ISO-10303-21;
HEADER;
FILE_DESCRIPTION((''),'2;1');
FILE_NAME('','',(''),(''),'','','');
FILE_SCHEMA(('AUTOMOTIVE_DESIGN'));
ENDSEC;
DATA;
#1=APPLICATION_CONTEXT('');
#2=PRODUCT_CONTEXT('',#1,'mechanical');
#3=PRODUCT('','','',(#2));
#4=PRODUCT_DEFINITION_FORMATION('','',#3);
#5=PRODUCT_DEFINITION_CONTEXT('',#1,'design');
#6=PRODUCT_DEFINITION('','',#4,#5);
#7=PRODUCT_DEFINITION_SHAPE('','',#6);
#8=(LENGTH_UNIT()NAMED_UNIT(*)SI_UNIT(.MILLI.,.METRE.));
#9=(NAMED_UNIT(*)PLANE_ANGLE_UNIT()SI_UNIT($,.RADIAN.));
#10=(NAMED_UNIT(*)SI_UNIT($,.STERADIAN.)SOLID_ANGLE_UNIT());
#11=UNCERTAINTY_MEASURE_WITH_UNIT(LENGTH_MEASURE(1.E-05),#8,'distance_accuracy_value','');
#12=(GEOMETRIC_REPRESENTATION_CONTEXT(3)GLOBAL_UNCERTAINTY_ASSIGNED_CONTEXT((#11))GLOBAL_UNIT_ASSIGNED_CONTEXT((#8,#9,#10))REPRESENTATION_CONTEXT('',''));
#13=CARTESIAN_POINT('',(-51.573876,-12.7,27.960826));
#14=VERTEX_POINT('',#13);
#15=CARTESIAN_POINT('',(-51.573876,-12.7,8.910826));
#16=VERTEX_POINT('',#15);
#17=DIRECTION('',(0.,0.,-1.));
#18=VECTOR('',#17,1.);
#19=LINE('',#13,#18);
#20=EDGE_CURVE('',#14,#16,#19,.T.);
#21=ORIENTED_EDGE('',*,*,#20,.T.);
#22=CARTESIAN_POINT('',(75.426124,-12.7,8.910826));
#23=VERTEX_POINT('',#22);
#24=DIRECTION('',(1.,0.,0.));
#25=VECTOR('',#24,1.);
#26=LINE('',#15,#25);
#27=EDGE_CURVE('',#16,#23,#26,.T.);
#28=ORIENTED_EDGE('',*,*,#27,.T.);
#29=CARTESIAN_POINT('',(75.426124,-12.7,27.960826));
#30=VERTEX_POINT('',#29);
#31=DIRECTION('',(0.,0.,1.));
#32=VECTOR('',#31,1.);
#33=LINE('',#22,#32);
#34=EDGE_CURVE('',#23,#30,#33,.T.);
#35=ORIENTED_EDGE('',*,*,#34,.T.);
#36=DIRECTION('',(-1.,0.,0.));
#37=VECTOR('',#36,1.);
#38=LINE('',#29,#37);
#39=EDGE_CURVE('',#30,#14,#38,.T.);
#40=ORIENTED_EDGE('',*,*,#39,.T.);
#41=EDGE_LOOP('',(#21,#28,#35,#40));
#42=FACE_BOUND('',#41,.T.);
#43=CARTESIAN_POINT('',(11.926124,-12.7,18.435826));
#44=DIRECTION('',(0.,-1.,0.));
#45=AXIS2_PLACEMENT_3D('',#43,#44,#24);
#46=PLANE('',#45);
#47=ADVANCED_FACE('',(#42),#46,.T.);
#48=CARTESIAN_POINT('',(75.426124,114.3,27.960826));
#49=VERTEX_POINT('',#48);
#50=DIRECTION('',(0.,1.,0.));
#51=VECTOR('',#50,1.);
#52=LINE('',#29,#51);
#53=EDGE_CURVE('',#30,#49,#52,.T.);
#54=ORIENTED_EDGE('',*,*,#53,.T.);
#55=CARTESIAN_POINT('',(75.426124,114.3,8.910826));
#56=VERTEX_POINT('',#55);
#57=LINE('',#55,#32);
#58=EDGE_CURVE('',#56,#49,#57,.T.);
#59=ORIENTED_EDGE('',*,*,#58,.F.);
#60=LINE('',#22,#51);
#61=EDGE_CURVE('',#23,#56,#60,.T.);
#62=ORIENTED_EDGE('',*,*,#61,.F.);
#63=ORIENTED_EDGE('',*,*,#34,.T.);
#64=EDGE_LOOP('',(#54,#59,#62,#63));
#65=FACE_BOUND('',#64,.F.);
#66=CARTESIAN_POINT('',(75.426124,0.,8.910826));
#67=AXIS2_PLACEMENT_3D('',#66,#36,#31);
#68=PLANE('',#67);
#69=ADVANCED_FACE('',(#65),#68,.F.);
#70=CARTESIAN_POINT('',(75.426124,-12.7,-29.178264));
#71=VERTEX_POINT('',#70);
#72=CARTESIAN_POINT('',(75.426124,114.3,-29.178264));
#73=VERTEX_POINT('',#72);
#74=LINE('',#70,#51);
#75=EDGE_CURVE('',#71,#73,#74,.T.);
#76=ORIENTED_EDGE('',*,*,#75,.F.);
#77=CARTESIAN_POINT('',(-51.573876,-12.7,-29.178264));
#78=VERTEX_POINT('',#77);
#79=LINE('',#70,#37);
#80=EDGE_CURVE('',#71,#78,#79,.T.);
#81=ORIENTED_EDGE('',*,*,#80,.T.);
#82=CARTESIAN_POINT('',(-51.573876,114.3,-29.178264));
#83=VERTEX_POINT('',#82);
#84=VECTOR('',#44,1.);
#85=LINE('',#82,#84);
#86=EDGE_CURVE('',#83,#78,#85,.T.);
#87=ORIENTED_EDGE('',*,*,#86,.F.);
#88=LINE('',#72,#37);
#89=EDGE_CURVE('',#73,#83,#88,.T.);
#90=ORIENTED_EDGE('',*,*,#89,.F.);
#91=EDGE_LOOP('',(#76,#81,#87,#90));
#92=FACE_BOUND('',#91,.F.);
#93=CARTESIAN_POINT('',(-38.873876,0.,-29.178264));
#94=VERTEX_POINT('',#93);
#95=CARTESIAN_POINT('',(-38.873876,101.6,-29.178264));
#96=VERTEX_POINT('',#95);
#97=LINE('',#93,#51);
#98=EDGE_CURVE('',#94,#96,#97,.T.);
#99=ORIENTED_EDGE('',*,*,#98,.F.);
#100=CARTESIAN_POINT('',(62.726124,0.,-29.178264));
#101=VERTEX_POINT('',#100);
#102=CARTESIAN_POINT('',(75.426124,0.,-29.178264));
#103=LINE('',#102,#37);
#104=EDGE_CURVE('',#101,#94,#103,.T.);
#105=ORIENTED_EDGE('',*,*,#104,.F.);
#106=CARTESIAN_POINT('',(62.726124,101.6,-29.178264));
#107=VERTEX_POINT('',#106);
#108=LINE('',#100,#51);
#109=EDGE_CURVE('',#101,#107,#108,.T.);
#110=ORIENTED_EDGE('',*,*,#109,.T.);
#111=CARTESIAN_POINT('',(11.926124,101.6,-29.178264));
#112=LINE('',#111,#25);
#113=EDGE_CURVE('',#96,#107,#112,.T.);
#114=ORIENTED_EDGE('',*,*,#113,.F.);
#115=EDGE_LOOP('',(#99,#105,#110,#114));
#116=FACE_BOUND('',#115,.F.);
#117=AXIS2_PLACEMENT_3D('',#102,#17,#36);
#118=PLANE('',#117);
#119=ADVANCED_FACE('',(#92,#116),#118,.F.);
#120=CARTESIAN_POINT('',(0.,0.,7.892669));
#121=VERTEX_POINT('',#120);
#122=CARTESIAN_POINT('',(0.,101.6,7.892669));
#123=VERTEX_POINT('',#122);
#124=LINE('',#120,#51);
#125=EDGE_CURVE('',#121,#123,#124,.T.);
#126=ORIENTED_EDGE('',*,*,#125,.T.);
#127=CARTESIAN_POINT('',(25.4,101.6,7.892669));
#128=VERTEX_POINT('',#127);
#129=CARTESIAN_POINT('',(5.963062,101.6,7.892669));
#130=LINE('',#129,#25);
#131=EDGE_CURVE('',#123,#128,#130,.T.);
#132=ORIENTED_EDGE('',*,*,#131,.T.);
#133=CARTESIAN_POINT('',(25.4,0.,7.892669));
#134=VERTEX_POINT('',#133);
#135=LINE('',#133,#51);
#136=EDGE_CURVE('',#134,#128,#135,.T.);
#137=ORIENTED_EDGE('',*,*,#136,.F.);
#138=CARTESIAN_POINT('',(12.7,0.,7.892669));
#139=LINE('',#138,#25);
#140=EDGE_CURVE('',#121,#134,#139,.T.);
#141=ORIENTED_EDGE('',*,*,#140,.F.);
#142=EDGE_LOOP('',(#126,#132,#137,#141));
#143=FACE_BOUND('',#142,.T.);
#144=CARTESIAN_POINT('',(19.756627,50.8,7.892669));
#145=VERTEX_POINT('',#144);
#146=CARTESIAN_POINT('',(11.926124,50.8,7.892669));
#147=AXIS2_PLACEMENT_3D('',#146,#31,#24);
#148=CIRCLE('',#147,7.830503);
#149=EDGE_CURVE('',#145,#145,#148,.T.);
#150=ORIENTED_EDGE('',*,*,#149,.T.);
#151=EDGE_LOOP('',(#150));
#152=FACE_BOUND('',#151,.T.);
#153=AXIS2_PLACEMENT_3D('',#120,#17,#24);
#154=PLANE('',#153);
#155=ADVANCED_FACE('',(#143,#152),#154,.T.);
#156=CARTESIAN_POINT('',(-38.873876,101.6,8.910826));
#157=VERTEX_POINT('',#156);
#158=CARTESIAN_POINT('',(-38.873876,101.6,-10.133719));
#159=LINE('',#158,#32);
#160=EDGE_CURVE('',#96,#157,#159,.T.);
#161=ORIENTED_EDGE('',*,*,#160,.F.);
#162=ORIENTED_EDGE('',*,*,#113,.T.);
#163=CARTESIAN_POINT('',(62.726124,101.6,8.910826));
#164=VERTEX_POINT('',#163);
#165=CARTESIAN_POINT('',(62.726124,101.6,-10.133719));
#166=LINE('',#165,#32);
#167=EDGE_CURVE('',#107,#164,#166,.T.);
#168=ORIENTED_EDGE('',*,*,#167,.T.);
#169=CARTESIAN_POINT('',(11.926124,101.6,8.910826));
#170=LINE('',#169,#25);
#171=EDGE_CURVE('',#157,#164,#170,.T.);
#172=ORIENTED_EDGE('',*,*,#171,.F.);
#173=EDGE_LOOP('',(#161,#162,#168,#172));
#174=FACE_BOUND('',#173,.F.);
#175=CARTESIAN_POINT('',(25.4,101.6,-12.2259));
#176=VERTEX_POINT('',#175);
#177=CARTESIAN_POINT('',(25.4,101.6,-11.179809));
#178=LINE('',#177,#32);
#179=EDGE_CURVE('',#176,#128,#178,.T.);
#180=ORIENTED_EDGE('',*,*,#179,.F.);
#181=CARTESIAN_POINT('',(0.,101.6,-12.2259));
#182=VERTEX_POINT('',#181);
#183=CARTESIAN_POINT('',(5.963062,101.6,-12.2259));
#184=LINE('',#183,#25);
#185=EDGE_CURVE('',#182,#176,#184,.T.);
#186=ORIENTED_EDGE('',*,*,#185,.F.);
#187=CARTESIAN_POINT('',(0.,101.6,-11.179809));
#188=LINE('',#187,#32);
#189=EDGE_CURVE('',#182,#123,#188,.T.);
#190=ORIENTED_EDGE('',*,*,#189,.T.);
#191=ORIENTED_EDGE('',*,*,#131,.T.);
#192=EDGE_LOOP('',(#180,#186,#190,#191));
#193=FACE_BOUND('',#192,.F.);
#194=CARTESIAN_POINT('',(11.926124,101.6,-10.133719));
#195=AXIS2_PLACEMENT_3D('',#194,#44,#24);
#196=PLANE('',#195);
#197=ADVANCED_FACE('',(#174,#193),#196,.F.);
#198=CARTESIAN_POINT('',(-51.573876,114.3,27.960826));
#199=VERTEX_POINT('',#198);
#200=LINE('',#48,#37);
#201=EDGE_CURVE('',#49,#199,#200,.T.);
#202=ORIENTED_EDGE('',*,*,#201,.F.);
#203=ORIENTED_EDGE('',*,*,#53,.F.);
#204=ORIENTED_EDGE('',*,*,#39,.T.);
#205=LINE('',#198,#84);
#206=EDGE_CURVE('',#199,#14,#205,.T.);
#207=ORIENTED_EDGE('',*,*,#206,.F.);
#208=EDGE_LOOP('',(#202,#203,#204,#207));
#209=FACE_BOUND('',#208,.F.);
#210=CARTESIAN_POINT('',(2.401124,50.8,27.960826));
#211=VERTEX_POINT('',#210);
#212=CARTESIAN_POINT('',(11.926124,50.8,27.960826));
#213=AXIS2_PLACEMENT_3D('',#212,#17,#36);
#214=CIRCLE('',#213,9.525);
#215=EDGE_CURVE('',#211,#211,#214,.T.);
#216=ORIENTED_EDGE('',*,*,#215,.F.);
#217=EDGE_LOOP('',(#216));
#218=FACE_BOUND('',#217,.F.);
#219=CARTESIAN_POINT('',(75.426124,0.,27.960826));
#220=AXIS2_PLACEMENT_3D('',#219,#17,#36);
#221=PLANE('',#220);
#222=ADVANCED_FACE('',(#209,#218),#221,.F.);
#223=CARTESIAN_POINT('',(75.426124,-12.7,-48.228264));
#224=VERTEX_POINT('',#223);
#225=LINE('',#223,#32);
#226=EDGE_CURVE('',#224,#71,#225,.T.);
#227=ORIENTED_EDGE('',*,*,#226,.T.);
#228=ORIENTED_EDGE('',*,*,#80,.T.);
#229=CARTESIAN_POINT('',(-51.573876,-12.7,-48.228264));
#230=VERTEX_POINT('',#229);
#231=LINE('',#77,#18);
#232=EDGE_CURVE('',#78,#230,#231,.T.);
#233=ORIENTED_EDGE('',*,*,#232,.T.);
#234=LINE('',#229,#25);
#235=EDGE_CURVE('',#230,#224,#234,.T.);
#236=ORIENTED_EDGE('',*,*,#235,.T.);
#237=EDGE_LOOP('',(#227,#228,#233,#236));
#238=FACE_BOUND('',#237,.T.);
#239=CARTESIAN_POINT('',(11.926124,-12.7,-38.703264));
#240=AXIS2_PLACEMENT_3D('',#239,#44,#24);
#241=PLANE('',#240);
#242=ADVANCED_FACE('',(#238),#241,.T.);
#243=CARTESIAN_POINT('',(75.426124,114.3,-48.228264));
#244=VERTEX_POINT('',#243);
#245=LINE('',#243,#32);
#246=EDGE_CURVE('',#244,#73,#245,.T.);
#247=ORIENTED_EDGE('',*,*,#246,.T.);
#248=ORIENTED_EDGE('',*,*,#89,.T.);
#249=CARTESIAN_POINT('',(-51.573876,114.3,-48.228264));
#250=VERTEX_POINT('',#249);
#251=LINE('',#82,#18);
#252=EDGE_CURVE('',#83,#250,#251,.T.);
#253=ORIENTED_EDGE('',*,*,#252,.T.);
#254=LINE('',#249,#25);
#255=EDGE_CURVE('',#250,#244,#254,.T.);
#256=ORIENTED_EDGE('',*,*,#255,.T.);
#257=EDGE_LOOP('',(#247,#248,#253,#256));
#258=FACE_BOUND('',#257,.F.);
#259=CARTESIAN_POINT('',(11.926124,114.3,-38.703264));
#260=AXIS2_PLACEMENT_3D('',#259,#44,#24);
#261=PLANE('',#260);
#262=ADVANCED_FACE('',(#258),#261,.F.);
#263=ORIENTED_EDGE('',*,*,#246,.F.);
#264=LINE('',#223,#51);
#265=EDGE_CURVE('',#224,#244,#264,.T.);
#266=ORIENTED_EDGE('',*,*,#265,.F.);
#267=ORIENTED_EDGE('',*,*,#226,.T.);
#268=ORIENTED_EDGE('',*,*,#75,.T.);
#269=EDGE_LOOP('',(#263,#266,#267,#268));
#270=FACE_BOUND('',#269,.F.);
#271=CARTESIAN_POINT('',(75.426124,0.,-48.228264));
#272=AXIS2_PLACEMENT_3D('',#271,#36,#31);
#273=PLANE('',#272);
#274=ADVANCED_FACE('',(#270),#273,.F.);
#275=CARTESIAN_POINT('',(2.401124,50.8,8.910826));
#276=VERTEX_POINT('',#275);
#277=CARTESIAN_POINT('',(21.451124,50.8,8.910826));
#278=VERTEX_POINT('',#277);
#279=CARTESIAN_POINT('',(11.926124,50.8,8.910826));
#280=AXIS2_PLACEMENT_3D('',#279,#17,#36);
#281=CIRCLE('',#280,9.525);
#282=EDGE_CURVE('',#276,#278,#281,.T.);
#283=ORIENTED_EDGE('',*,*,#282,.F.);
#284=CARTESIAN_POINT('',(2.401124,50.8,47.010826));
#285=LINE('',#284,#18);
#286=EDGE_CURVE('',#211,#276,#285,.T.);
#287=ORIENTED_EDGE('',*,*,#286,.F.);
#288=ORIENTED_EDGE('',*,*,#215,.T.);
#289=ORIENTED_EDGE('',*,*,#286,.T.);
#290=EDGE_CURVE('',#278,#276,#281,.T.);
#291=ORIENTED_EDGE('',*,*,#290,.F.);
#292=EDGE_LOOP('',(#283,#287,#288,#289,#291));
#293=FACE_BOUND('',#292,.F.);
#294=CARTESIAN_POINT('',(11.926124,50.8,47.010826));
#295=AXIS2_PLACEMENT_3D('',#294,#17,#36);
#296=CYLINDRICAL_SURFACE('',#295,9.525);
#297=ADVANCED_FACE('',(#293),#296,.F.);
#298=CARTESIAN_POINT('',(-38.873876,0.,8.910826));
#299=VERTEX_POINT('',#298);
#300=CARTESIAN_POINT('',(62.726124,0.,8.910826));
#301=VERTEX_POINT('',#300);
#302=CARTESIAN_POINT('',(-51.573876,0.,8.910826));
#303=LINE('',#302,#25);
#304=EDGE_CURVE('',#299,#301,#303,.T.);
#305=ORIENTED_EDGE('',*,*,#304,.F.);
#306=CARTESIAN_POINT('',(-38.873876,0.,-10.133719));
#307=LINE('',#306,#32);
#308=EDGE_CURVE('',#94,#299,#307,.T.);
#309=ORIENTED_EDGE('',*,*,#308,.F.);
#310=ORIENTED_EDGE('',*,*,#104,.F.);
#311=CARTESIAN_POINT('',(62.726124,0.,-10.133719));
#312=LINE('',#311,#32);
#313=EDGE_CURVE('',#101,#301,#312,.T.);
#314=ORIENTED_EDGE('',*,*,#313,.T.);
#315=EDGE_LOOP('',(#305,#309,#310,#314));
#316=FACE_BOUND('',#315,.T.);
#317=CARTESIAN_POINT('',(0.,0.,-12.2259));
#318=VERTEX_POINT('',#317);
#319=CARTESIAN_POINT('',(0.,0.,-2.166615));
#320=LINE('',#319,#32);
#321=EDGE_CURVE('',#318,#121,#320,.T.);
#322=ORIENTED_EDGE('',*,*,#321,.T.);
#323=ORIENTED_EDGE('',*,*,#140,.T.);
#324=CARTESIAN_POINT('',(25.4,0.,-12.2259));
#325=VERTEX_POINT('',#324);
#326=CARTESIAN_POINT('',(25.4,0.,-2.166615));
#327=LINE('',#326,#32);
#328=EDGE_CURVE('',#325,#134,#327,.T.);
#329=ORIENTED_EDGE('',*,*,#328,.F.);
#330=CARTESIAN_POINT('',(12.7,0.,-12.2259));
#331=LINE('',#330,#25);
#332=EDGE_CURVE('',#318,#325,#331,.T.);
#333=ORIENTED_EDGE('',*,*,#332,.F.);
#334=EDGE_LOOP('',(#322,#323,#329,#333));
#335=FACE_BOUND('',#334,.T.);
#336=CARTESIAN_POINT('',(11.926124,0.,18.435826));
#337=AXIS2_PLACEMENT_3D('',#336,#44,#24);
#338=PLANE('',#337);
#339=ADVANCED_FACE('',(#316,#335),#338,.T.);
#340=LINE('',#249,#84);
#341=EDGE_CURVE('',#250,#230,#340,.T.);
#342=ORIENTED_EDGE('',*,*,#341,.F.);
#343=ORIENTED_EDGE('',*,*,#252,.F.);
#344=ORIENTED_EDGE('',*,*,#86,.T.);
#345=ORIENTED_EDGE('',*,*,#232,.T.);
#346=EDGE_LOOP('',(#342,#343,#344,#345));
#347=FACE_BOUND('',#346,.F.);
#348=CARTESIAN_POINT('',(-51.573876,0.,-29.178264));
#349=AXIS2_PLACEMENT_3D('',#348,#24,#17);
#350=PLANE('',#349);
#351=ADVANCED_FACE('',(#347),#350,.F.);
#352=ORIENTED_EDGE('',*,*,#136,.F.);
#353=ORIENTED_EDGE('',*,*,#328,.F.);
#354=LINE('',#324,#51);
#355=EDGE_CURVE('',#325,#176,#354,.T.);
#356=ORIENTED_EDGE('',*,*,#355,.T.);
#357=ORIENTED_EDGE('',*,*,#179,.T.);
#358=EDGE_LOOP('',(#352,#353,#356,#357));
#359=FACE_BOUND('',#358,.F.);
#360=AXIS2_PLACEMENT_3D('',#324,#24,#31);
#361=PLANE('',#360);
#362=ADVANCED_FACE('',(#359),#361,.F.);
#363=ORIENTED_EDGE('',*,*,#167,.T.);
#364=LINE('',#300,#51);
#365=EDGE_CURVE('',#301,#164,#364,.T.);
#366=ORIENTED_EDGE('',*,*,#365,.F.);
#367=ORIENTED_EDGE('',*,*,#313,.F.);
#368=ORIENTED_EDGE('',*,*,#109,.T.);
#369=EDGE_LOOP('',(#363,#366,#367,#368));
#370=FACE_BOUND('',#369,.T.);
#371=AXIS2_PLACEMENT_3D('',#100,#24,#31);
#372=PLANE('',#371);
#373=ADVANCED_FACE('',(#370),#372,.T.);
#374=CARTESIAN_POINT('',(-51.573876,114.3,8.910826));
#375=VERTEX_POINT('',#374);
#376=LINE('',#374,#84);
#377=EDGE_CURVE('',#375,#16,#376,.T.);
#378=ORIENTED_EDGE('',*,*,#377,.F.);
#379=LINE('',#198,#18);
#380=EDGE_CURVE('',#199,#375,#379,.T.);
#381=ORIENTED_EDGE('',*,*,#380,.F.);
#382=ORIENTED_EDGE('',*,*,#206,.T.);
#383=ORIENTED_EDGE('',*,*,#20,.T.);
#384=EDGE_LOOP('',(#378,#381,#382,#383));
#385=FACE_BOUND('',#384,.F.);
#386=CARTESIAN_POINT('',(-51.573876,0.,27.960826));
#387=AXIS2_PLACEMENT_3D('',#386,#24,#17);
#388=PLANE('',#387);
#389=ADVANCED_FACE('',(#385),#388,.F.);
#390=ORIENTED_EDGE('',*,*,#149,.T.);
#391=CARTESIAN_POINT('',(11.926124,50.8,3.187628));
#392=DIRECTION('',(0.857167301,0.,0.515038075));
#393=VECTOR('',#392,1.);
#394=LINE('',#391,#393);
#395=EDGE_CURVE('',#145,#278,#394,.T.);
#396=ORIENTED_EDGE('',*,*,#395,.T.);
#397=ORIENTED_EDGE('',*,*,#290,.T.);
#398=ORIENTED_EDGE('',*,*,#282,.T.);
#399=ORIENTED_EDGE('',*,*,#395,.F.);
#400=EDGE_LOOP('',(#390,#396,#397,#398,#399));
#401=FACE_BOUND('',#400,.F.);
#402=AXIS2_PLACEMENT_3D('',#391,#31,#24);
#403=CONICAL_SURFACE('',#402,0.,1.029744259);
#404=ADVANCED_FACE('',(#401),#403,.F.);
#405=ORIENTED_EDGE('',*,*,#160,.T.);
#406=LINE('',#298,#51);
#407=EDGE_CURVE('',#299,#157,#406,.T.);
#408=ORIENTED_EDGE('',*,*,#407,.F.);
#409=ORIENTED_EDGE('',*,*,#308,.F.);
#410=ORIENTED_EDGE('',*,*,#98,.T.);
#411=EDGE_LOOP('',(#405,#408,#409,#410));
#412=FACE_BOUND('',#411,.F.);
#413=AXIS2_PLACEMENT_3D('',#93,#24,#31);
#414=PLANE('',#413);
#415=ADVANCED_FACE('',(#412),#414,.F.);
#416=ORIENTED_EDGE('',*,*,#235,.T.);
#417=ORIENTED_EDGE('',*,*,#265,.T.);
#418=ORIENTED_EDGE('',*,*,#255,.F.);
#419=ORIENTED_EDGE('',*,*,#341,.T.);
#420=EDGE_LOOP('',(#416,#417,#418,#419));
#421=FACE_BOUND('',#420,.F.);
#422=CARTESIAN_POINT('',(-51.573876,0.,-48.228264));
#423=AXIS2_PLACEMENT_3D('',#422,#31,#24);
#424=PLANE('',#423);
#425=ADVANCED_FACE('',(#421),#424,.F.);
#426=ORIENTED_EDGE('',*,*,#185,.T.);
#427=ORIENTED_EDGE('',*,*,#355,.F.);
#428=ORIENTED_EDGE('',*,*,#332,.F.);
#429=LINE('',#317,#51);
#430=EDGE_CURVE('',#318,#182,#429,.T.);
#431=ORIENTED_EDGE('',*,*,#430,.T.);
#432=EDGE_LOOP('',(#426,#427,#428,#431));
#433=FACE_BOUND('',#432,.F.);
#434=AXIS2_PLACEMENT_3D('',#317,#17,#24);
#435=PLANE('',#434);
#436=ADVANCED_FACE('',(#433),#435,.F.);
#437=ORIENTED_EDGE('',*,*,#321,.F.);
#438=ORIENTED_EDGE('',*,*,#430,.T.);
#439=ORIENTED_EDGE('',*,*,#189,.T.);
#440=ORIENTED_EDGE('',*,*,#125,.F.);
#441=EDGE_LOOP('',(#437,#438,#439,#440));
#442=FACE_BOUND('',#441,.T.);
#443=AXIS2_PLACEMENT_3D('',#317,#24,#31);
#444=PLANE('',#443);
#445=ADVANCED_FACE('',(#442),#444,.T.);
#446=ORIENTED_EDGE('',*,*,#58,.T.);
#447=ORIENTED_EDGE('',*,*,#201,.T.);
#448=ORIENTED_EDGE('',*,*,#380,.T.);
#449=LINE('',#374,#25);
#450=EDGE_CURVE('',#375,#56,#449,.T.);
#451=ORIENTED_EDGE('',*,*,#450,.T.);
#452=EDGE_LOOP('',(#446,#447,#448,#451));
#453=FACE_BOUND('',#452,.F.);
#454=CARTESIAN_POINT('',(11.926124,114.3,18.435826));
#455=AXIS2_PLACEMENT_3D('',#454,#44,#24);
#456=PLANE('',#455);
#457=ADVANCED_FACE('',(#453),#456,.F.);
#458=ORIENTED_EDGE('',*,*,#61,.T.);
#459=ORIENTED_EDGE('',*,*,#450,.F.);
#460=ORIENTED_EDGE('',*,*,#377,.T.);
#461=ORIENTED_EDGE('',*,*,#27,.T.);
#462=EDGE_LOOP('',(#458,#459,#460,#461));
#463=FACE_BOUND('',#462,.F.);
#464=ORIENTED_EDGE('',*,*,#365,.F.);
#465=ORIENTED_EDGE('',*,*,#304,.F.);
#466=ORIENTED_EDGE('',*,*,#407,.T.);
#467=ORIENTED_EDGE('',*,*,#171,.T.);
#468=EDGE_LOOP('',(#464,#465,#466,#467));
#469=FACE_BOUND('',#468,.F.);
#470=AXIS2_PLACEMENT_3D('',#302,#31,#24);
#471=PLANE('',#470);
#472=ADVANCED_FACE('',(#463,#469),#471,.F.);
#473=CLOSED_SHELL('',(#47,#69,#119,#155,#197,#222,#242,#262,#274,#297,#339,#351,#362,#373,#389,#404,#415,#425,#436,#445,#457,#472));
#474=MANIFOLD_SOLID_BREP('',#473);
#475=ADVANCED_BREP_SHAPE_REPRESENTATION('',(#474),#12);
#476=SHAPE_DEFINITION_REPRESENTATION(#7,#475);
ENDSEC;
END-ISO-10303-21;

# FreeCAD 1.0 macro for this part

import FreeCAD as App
import Part
import Sketcher

V = App.Vector
Q = App.Units.Quantity


def add_polygon(sketch, points):
    """Adds a closed chain of lines whose ends are joined by coincident constraints."""
    first, n = sketch.GeometryCount, len(points)
    for a, b in zip(points, points[1:] + points[:1]):
        sketch.addGeometry(Part.LineSegment(App.Vector(*a, 0), App.Vector(*b, 0)), False)
    for i in range(n):
        sketch.addConstraint(Sketcher.Constraint("Coincident", first + i, 2, first + (i + 1) % n, 1))

doc = App.newDocument("Part")
body = doc.addObject("PartDesign::Body", "Body")

sketch1 = doc.addObject("Sketcher::SketchObject", "Sketch")
body.addObject(sketch1)
sketch1.AttachmentSupport = (doc.XZ_Plane, [""])
sketch1.MapMode = "FlatFace"
add_polygon(sketch1, [(-38.873876, 8.910826), (-38.873876, -29.178264), (62.726124, -29.178264), (62.726124, 8.910826)])
sketch1.addConstraint([
    Sketcher.Constraint("Vertical", 0),
    Sketcher.Constraint("Horizontal", 1),
    Sketcher.Constraint("Vertical", 2),
    Sketcher.Constraint("Horizontal", 3),
    Sketcher.Constraint("DistanceX", 1, 1, 1, 2, Q("4 in")),
    Sketcher.Constraint("DistanceY", 0, 2, 0, 1, Q("38.089089 mm")),
    Sketcher.Constraint("DistanceX", 0, 2, -1, 1, Q("38.873876 mm")),
    Sketcher.Constraint("DistanceY", 0, 2, -1, 1, Q("29.178264 mm")),
])
pad1 = doc.addObject("PartDesign::Pad", "Pad")
body.addObject(pad1)
pad1.Profile = sketch1
pad1.Length = Q("4 in")
pad1.Reversed = True

sketch2 = doc.addObject("Sketcher::SketchObject", "Sketch001")
body.addObject(sketch2)
sketch2.AttachmentSupport = (doc.XZ_Plane, [""])
sketch2.MapMode = "FlatFace"
add_polygon(sketch2, [(75.426124, 27.960826), (-51.573876, 27.960826), (-51.573876, 8.910826), (75.426124, 8.910826)])
add_polygon(sketch2, [(-51.573876, -29.178264), (-51.573876, -48.228264), (75.426124, -48.228264), (75.426124, -29.178264)])
sketch2.addConstraint([
    Sketcher.Constraint("Horizontal", 0),
    Sketcher.Constraint("Vertical", 1),
    Sketcher.Constraint("Horizontal", 2),
    Sketcher.Constraint("Vertical", 3),
    Sketcher.Constraint("Vertical", 4),
    Sketcher.Constraint("Horizontal", 5),
    Sketcher.Constraint("Vertical", 6),
    Sketcher.Constraint("Horizontal", 7),
    Sketcher.Constraint("Vertical", 1, 2, 4, 2),
    Sketcher.Constraint("Vertical", 3, 2, 5, 2),
    Sketcher.Constraint("Equal", 3, 4),
    Sketcher.Constraint("DistanceX", 0, 2, 0, 1, Q("5 in")),
    Sketcher.Constraint("DistanceY", 1, 2, 1, 1, Q("0.75 in")),
    Sketcher.Constraint("DistanceY", 4, 2, 1, 2, Q("57.139089 mm")),
    Sketcher.Constraint("DistanceX", 0, 2, -1, 1, Q("51.573876 mm")),
    Sketcher.Constraint("DistanceY", -1, 1, 0, 2, Q("27.960826 mm")),
])
pad2 = doc.addObject("PartDesign::Pad", "Pad001")
body.addObject(pad2)
pad2.Profile = sketch2
pad2.Type = "TwoLengths"
pad2.Length = Q("4.5 in")
pad2.Length2 = Q("0.5 in")
pad2.Reversed = True

sketch3 = doc.addObject("Sketcher::SketchObject", "Sketch002")
body.addObject(sketch3)
sketch3.AttachmentSupport = (doc.XZ_Plane, [""])
sketch3.MapMode = "FlatFace"
add_polygon(sketch3, [(0, 7.892669), (0, -12.2259), (25.4, -12.2259), (25.4, 7.892669)])
sketch3.addConstraint([
    Sketcher.Constraint("Vertical", 0),
    Sketcher.Constraint("Horizontal", 1),
    Sketcher.Constraint("Vertical", 2),
    Sketcher.Constraint("Horizontal", 3),
    Sketcher.Constraint("PointOnObject", 0, 2, -2),
    Sketcher.Constraint("DistanceX", 1, 1, 1, 2, Q("1 in")),
    Sketcher.Constraint("DistanceY", 0, 2, 0, 1, Q("20.118569 mm")),
    Sketcher.Constraint("DistanceY", 0, 2, -1, 1, Q("12.2259 mm")),
])
pocket1 = doc.addObject("PartDesign::Pocket", "Pocket")
body.addObject(pocket1)
pocket1.Profile = sketch3
pocket1.Type = "ThroughAll"

sketch4 = doc.addObject("Sketcher::SketchObject", "Sketch003")
body.addObject(sketch4)
sketch4.AttachmentSupport = (doc.XY_Plane, [""])
sketch4.MapMode = "FlatFace"
sketch4.AttachmentOffset = App.Placement(V(0, 0, 27.960826), App.Rotation())
sketch4.addGeometry(Part.Circle(V(11.926124, 50.8, 0), V(0, 0, 1), 9.525), False)
sketch4.addConstraint([
    Sketcher.Constraint("Diameter", 0, Q("0.75 in")),
    Sketcher.Constraint("DistanceY", -1, 1, 0, 3, Q("2 in")),
    Sketcher.Constraint("DistanceX", -1, 1, 0, 3, Q("11.926124 mm")),
])
doc.recompute()
hole = doc.addObject("PartDesign::Hole", "Hole")
body.addObject(hole)
hole.Profile = sketch4
hole.ThreadType = "None"
hole.Diameter = Q("0.75 in")
hole.DepthType = "Dimension"
hole.Depth = Q("0.75 in")
hole.DrillPoint = "Angled"
hole.DrillPointAngle = 118

doc.recompute()
